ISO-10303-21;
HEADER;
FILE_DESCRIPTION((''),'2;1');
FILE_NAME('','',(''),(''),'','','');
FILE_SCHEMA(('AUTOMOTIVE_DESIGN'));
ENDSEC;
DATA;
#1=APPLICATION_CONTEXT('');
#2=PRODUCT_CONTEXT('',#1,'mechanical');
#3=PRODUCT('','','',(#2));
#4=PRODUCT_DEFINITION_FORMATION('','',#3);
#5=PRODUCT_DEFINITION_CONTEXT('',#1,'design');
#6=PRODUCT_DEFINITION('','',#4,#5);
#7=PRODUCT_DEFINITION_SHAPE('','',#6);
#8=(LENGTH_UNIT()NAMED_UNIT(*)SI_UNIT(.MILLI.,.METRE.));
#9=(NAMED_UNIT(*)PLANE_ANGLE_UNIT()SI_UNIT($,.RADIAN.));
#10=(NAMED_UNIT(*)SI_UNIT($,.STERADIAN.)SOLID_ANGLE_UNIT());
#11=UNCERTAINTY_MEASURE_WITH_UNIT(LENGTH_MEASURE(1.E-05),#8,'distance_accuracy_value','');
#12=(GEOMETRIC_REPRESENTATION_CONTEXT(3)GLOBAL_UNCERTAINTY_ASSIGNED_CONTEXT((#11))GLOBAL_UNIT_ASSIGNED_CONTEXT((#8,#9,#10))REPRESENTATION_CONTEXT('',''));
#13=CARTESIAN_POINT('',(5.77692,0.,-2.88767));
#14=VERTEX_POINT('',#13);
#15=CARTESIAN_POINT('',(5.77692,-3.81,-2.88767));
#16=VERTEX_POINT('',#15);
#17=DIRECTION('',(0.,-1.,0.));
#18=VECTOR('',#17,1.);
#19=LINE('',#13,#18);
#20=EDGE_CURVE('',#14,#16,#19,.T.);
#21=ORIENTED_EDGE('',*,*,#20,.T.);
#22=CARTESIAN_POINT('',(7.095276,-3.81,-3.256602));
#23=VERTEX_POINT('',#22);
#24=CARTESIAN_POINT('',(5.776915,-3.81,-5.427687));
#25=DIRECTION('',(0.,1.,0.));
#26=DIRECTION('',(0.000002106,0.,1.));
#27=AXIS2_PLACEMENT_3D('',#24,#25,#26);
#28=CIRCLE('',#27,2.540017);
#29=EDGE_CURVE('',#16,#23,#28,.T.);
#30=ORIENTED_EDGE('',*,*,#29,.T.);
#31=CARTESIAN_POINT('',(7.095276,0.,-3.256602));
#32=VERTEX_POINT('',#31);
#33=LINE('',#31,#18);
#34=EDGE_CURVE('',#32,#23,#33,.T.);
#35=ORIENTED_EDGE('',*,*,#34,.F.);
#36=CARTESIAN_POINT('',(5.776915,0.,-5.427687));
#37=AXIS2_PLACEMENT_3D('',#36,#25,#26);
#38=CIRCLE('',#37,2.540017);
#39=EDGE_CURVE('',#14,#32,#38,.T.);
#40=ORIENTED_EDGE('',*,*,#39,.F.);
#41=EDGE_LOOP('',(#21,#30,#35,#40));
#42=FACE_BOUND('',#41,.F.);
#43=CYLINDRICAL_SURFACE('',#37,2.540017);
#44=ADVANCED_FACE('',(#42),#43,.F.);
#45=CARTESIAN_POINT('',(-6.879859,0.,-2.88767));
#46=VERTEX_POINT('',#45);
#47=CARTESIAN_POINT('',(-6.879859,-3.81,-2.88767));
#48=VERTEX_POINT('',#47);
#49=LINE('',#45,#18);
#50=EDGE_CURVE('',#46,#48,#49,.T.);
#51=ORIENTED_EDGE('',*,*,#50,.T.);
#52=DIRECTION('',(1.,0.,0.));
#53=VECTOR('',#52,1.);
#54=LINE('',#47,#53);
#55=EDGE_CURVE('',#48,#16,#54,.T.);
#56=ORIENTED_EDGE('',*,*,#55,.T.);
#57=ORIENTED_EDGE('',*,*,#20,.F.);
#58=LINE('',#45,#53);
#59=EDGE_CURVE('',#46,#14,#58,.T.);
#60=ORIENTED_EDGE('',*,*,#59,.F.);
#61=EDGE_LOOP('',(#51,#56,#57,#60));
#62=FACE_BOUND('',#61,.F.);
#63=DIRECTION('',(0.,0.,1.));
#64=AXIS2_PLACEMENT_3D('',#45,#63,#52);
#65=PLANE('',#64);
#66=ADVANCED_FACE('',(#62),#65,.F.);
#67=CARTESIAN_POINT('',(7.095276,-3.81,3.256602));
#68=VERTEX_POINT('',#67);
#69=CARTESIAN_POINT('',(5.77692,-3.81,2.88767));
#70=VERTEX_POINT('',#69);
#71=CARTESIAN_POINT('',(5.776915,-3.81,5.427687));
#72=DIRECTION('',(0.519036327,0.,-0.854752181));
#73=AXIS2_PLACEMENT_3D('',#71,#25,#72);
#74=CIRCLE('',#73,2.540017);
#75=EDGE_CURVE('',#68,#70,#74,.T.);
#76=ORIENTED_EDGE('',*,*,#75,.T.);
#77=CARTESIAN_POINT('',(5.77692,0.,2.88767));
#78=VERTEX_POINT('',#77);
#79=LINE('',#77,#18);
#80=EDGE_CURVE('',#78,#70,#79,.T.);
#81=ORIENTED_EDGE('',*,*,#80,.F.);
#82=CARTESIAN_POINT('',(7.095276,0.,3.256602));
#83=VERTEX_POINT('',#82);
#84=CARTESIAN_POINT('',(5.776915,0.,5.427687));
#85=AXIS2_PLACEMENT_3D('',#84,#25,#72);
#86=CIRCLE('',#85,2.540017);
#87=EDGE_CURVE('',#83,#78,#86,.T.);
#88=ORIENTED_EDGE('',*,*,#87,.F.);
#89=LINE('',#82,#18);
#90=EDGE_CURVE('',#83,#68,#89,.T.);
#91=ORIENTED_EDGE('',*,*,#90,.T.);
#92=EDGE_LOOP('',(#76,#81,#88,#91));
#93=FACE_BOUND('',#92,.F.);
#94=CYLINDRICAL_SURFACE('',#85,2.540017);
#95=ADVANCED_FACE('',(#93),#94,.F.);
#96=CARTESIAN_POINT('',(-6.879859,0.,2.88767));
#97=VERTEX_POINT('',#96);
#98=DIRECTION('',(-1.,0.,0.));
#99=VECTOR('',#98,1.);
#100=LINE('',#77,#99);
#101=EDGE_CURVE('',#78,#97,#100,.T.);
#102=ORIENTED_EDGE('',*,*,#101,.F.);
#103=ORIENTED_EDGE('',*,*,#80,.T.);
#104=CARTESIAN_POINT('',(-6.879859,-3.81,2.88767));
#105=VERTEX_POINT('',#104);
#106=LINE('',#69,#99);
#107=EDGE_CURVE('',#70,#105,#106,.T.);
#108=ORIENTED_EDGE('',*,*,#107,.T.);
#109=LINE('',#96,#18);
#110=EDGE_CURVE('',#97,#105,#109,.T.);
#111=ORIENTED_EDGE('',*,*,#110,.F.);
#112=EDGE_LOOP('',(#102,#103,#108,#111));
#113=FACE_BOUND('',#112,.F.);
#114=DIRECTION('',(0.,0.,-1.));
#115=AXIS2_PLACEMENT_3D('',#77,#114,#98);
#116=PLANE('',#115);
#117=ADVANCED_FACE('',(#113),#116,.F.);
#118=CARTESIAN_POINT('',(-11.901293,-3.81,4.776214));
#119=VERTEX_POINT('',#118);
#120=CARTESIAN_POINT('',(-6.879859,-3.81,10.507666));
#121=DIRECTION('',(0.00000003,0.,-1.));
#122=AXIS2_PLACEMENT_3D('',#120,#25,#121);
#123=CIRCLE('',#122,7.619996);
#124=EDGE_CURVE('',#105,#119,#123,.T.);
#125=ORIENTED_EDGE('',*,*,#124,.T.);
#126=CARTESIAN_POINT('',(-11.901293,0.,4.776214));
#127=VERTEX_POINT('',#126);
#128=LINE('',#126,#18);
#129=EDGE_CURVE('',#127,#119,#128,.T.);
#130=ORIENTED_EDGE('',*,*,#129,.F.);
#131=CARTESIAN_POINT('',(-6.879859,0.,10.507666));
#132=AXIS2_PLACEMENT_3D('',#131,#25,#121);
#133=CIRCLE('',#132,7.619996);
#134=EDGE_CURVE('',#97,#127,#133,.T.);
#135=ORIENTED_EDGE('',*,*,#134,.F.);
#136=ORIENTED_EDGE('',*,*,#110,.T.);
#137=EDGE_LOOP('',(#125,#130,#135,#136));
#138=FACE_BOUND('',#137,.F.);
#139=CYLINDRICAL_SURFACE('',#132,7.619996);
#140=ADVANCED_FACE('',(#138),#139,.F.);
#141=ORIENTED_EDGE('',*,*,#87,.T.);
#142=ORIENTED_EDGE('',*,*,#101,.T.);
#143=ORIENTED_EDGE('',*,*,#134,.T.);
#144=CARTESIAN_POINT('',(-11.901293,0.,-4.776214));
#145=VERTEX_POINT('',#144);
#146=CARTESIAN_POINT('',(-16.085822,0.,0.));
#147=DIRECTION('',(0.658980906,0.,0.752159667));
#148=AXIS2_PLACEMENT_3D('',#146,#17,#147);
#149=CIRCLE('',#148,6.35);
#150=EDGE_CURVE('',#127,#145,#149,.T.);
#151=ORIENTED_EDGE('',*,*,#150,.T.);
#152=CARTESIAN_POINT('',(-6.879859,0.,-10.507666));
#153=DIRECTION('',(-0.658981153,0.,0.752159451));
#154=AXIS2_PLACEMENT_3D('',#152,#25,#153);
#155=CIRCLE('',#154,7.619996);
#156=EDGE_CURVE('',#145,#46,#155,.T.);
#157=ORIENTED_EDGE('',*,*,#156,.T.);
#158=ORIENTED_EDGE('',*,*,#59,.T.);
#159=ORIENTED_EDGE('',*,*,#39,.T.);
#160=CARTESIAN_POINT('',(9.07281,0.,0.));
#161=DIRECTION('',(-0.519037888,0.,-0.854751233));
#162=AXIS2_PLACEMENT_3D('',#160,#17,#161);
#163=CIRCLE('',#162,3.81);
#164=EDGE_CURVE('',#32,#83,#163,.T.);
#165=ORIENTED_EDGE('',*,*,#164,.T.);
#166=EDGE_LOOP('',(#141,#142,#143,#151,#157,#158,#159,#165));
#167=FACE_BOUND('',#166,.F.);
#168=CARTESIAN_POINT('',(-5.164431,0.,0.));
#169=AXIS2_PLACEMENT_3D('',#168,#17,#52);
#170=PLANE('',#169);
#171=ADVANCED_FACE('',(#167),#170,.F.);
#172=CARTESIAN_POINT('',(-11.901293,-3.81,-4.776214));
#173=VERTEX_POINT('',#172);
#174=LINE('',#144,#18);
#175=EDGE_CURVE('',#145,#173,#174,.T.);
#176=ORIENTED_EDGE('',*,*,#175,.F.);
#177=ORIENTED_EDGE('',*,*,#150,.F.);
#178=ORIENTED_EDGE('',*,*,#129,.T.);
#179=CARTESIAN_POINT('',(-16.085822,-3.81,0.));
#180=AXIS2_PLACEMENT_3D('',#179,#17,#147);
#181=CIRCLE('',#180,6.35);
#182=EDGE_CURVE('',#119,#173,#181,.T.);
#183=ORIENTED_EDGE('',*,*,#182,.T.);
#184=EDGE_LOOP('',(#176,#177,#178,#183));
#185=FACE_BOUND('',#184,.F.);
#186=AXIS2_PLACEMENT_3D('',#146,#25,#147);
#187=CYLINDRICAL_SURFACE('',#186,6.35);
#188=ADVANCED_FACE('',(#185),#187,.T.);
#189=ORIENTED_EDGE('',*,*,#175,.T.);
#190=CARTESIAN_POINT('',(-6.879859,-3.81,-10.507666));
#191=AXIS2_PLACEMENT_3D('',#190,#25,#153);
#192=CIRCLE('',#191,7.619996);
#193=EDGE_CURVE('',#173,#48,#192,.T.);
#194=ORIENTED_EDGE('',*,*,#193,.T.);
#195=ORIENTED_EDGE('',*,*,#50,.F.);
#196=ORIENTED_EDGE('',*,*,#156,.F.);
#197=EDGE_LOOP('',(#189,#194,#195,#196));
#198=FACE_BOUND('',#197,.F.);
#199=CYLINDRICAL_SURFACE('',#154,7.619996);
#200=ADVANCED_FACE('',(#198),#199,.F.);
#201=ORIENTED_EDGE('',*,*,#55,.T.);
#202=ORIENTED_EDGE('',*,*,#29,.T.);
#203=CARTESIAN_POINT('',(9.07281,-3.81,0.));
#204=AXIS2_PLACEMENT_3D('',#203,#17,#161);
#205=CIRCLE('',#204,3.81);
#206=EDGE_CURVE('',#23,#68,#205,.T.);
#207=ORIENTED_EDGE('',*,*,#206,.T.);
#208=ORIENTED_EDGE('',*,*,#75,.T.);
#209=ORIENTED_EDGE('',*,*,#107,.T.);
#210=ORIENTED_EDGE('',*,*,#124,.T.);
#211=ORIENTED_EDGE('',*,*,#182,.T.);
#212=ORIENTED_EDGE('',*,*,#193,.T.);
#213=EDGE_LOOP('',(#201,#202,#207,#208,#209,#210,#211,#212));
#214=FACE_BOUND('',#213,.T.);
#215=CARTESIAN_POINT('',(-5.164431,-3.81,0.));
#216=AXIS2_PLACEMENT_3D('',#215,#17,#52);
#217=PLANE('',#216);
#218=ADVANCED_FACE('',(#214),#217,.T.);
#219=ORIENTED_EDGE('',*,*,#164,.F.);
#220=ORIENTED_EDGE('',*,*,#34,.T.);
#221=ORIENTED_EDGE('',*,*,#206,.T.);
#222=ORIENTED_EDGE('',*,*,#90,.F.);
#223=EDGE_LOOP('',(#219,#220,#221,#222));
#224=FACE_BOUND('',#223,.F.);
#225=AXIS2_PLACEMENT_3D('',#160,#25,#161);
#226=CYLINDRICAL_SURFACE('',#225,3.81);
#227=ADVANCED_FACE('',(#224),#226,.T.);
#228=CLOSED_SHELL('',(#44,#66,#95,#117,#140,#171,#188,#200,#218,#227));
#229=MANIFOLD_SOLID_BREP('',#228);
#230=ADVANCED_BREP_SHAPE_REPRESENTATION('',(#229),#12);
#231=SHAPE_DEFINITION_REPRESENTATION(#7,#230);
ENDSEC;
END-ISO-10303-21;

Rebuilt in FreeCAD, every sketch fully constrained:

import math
import FreeCAD as App
import Part
import Sketcher

V = App.Vector
Q = App.Units.Quantity

doc = App.newDocument("Part")
params = doc.addObject("Spreadsheet::Sheet", "Params")
for row, (alias, value) in enumerate([
    ("sketch1_radius", "0.2999998 in"),
    ("sketch1_radius2", "0.25 in"),
    ("sketch1_radius3", "0.15 in"),
    ("pad1_length", "0.15 in"),
], start=1):
    params.set(f"A{row}", alias)
    params.set(f"B{row}", "=" + value)
    params.setAlias(f"B{row}", alias)

body = doc.addObject("PartDesign::Body", "Body")

sketch1 = body.newObject("Sketcher::SketchObject", "Sketch")
sketch1.AttachmentSupport = (doc.getObject("XZ_Plane"), [""])
sketch1.MapMode = "FlatFace"
sketch1.addGeometry([
    Part.ArcOfCircle(Part.Circle(V(-6.879859, 10.507666, 0), V(0, 0, 1), 7.619996), math.radians(-131.222216), math.radians(-89.999998)),
    Part.ArcOfCircle(Part.Circle(V(-16.085822, 0, 0), V(0, 0, 1), 6.35), math.radians(48.777803), math.radians(311.222197)),
    Part.ArcOfCircle(Part.Circle(V(-6.879859, -10.507666, 0), V(0, 0, 1), 7.619996), math.radians(89.999998), math.radians(131.222216)),
    Part.LineSegment(V(-6.879859, -2.88767, 0), V(5.77692, -2.88767, 0)),
    Part.ArcOfCircle(Part.Circle(V(5.776915, -5.427687, 0), V(0, 0, 1), 2.540017), math.radians(58.732368), math.radians(89.999879)),
    Part.ArcOfCircle(Part.Circle(V(9.07281, 0, 0), V(0, 0, 1), 3.81), math.radians(-121.267737), math.radians(121.267737)),
    Part.ArcOfCircle(Part.Circle(V(5.776915, 5.427687, 0), V(0, 0, 1), 2.540017), math.radians(-89.999879), math.radians(-58.732368)),
    Part.LineSegment(V(5.77692, 2.88767, 0), V(-6.879859, 2.88767, 0)),
], False)
sketch1.addConstraint([
    Sketcher.Constraint("Tangent", 0, 1, 1, 1),
    Sketcher.Constraint("Tangent", 1, 2, 2, 2),
    Sketcher.Constraint("Tangent", 2, 1, 3, 1),
    Sketcher.Constraint("Coincident", 3, 2, 4, 2),
    Sketcher.Constraint("Tangent", 4, 1, 5, 1),
    Sketcher.Constraint("Tangent", 5, 2, 6, 2),
    Sketcher.Constraint("Coincident", 6, 1, 7, 1),
    Sketcher.Constraint("Tangent", 7, 2, 0, 2),
    Sketcher.Constraint("Horizontal", 3),
    Sketcher.Constraint("Horizontal", 7),
    Sketcher.Constraint("Equal", 0, 2),
    Sketcher.Constraint("Equal", 4, 6),
    Sketcher.Constraint("Symmetric", 0, 3, 2, 3, -1),
    Sketcher.Constraint("PointOnObject", 5, 3, -1),
    Sketcher.Constraint("Vertical", 3, 2, 6, 1),
    Sketcher.Constraint("Radius", 0, Q("0.2999998 in")),
    Sketcher.Constraint("Radius", 1, Q("0.25 in")),
    Sketcher.Constraint("Radius", 5, Q("0.15 in")),
    Sketcher.Constraint("DistanceX", 1, 3, -1, 1, Q("0.6333001 in")),
    Sketcher.Constraint("Radius", 4, 2.540017),
    Sketcher.Constraint("DistanceX", 3, 1, 3, 2, 12.656779),
    Sketcher.Constraint("DistanceY", 4, 1, -1, 1, 3.256602),
    Sketcher.Constraint("DistanceX", -1, 1, 5, 3, 9.07281),
])
sketch1.setExpression("Constraints[15]", "Params.sketch1_radius")
sketch1.setExpression("Constraints[16]", "Params.sketch1_radius2")
sketch1.setExpression("Constraints[17]", "Params.sketch1_radius3")
pad1 = body.newObject("PartDesign::Pad", "Pad")
pad1.Profile = sketch1
pad1.setExpression("Length", "Params.pad1_length")

doc.recompute()
